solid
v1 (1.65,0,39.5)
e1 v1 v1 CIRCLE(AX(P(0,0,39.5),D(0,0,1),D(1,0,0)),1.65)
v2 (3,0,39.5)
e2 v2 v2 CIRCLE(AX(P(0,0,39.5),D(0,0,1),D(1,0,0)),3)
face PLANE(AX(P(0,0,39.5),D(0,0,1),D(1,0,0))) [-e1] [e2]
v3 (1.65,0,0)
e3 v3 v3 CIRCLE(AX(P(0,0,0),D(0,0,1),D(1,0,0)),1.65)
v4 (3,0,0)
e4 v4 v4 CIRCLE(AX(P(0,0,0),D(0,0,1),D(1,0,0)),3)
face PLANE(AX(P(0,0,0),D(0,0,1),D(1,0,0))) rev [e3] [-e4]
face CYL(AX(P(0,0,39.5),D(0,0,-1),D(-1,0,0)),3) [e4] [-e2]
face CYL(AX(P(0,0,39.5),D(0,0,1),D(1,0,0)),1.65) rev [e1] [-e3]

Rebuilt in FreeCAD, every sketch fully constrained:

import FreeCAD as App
import Part
import Sketcher

V = App.Vector
Q = App.Units.Quantity

doc = App.newDocument("Part")
body = doc.addObject("PartDesign::Body", "Body")

sketch1 = body.newObject("Sketcher::SketchObject", "Sketch")
sketch1.AttachmentSupport = (doc.getObject("XY_Plane"), [""])
sketch1.MapMode = "FlatFace"
sketch1.addGeometry(Part.Circle(V(0, 0, 0), V(0, 0, 1), 3), False)
sketch1.addConstraint(Sketcher.Constraint("Coincident", 0, 3, -1, 1))
sketch1.addConstraint(Sketcher.Constraint("Diameter", 0, Q("6 mm")))
pad1 = body.newObject("PartDesign::Pad", "Pad")
pad1.Profile = sketch1
pad1.Length = 39.5

sketch2 = body.newObject("Sketcher::SketchObject", "Sketch001")
sketch2.AttachmentSupport = (doc.getObject("XY_Plane"), [""])
sketch2.MapMode = "FlatFace"
sketch2.AttachmentOffset = App.Placement(V(0, 0, 39.5), App.Rotation())
sketch2.addGeometry(Part.Circle(V(0, 0, 0), V(0, 0, 1), 1.65), False)
sketch2.addConstraint(Sketcher.Constraint("Coincident", 0, 3, -1, 1))
sketch2.addConstraint(Sketcher.Constraint("Diameter", 0, Q("3.3 mm")))
doc.recompute()
hole = body.newObject("PartDesign::Hole", "Hole")
hole.Profile = sketch2
hole.ThreadType = "None"
hole.Diameter = 3.3
hole.DepthType = "ThroughAll"

doc.recompute()
